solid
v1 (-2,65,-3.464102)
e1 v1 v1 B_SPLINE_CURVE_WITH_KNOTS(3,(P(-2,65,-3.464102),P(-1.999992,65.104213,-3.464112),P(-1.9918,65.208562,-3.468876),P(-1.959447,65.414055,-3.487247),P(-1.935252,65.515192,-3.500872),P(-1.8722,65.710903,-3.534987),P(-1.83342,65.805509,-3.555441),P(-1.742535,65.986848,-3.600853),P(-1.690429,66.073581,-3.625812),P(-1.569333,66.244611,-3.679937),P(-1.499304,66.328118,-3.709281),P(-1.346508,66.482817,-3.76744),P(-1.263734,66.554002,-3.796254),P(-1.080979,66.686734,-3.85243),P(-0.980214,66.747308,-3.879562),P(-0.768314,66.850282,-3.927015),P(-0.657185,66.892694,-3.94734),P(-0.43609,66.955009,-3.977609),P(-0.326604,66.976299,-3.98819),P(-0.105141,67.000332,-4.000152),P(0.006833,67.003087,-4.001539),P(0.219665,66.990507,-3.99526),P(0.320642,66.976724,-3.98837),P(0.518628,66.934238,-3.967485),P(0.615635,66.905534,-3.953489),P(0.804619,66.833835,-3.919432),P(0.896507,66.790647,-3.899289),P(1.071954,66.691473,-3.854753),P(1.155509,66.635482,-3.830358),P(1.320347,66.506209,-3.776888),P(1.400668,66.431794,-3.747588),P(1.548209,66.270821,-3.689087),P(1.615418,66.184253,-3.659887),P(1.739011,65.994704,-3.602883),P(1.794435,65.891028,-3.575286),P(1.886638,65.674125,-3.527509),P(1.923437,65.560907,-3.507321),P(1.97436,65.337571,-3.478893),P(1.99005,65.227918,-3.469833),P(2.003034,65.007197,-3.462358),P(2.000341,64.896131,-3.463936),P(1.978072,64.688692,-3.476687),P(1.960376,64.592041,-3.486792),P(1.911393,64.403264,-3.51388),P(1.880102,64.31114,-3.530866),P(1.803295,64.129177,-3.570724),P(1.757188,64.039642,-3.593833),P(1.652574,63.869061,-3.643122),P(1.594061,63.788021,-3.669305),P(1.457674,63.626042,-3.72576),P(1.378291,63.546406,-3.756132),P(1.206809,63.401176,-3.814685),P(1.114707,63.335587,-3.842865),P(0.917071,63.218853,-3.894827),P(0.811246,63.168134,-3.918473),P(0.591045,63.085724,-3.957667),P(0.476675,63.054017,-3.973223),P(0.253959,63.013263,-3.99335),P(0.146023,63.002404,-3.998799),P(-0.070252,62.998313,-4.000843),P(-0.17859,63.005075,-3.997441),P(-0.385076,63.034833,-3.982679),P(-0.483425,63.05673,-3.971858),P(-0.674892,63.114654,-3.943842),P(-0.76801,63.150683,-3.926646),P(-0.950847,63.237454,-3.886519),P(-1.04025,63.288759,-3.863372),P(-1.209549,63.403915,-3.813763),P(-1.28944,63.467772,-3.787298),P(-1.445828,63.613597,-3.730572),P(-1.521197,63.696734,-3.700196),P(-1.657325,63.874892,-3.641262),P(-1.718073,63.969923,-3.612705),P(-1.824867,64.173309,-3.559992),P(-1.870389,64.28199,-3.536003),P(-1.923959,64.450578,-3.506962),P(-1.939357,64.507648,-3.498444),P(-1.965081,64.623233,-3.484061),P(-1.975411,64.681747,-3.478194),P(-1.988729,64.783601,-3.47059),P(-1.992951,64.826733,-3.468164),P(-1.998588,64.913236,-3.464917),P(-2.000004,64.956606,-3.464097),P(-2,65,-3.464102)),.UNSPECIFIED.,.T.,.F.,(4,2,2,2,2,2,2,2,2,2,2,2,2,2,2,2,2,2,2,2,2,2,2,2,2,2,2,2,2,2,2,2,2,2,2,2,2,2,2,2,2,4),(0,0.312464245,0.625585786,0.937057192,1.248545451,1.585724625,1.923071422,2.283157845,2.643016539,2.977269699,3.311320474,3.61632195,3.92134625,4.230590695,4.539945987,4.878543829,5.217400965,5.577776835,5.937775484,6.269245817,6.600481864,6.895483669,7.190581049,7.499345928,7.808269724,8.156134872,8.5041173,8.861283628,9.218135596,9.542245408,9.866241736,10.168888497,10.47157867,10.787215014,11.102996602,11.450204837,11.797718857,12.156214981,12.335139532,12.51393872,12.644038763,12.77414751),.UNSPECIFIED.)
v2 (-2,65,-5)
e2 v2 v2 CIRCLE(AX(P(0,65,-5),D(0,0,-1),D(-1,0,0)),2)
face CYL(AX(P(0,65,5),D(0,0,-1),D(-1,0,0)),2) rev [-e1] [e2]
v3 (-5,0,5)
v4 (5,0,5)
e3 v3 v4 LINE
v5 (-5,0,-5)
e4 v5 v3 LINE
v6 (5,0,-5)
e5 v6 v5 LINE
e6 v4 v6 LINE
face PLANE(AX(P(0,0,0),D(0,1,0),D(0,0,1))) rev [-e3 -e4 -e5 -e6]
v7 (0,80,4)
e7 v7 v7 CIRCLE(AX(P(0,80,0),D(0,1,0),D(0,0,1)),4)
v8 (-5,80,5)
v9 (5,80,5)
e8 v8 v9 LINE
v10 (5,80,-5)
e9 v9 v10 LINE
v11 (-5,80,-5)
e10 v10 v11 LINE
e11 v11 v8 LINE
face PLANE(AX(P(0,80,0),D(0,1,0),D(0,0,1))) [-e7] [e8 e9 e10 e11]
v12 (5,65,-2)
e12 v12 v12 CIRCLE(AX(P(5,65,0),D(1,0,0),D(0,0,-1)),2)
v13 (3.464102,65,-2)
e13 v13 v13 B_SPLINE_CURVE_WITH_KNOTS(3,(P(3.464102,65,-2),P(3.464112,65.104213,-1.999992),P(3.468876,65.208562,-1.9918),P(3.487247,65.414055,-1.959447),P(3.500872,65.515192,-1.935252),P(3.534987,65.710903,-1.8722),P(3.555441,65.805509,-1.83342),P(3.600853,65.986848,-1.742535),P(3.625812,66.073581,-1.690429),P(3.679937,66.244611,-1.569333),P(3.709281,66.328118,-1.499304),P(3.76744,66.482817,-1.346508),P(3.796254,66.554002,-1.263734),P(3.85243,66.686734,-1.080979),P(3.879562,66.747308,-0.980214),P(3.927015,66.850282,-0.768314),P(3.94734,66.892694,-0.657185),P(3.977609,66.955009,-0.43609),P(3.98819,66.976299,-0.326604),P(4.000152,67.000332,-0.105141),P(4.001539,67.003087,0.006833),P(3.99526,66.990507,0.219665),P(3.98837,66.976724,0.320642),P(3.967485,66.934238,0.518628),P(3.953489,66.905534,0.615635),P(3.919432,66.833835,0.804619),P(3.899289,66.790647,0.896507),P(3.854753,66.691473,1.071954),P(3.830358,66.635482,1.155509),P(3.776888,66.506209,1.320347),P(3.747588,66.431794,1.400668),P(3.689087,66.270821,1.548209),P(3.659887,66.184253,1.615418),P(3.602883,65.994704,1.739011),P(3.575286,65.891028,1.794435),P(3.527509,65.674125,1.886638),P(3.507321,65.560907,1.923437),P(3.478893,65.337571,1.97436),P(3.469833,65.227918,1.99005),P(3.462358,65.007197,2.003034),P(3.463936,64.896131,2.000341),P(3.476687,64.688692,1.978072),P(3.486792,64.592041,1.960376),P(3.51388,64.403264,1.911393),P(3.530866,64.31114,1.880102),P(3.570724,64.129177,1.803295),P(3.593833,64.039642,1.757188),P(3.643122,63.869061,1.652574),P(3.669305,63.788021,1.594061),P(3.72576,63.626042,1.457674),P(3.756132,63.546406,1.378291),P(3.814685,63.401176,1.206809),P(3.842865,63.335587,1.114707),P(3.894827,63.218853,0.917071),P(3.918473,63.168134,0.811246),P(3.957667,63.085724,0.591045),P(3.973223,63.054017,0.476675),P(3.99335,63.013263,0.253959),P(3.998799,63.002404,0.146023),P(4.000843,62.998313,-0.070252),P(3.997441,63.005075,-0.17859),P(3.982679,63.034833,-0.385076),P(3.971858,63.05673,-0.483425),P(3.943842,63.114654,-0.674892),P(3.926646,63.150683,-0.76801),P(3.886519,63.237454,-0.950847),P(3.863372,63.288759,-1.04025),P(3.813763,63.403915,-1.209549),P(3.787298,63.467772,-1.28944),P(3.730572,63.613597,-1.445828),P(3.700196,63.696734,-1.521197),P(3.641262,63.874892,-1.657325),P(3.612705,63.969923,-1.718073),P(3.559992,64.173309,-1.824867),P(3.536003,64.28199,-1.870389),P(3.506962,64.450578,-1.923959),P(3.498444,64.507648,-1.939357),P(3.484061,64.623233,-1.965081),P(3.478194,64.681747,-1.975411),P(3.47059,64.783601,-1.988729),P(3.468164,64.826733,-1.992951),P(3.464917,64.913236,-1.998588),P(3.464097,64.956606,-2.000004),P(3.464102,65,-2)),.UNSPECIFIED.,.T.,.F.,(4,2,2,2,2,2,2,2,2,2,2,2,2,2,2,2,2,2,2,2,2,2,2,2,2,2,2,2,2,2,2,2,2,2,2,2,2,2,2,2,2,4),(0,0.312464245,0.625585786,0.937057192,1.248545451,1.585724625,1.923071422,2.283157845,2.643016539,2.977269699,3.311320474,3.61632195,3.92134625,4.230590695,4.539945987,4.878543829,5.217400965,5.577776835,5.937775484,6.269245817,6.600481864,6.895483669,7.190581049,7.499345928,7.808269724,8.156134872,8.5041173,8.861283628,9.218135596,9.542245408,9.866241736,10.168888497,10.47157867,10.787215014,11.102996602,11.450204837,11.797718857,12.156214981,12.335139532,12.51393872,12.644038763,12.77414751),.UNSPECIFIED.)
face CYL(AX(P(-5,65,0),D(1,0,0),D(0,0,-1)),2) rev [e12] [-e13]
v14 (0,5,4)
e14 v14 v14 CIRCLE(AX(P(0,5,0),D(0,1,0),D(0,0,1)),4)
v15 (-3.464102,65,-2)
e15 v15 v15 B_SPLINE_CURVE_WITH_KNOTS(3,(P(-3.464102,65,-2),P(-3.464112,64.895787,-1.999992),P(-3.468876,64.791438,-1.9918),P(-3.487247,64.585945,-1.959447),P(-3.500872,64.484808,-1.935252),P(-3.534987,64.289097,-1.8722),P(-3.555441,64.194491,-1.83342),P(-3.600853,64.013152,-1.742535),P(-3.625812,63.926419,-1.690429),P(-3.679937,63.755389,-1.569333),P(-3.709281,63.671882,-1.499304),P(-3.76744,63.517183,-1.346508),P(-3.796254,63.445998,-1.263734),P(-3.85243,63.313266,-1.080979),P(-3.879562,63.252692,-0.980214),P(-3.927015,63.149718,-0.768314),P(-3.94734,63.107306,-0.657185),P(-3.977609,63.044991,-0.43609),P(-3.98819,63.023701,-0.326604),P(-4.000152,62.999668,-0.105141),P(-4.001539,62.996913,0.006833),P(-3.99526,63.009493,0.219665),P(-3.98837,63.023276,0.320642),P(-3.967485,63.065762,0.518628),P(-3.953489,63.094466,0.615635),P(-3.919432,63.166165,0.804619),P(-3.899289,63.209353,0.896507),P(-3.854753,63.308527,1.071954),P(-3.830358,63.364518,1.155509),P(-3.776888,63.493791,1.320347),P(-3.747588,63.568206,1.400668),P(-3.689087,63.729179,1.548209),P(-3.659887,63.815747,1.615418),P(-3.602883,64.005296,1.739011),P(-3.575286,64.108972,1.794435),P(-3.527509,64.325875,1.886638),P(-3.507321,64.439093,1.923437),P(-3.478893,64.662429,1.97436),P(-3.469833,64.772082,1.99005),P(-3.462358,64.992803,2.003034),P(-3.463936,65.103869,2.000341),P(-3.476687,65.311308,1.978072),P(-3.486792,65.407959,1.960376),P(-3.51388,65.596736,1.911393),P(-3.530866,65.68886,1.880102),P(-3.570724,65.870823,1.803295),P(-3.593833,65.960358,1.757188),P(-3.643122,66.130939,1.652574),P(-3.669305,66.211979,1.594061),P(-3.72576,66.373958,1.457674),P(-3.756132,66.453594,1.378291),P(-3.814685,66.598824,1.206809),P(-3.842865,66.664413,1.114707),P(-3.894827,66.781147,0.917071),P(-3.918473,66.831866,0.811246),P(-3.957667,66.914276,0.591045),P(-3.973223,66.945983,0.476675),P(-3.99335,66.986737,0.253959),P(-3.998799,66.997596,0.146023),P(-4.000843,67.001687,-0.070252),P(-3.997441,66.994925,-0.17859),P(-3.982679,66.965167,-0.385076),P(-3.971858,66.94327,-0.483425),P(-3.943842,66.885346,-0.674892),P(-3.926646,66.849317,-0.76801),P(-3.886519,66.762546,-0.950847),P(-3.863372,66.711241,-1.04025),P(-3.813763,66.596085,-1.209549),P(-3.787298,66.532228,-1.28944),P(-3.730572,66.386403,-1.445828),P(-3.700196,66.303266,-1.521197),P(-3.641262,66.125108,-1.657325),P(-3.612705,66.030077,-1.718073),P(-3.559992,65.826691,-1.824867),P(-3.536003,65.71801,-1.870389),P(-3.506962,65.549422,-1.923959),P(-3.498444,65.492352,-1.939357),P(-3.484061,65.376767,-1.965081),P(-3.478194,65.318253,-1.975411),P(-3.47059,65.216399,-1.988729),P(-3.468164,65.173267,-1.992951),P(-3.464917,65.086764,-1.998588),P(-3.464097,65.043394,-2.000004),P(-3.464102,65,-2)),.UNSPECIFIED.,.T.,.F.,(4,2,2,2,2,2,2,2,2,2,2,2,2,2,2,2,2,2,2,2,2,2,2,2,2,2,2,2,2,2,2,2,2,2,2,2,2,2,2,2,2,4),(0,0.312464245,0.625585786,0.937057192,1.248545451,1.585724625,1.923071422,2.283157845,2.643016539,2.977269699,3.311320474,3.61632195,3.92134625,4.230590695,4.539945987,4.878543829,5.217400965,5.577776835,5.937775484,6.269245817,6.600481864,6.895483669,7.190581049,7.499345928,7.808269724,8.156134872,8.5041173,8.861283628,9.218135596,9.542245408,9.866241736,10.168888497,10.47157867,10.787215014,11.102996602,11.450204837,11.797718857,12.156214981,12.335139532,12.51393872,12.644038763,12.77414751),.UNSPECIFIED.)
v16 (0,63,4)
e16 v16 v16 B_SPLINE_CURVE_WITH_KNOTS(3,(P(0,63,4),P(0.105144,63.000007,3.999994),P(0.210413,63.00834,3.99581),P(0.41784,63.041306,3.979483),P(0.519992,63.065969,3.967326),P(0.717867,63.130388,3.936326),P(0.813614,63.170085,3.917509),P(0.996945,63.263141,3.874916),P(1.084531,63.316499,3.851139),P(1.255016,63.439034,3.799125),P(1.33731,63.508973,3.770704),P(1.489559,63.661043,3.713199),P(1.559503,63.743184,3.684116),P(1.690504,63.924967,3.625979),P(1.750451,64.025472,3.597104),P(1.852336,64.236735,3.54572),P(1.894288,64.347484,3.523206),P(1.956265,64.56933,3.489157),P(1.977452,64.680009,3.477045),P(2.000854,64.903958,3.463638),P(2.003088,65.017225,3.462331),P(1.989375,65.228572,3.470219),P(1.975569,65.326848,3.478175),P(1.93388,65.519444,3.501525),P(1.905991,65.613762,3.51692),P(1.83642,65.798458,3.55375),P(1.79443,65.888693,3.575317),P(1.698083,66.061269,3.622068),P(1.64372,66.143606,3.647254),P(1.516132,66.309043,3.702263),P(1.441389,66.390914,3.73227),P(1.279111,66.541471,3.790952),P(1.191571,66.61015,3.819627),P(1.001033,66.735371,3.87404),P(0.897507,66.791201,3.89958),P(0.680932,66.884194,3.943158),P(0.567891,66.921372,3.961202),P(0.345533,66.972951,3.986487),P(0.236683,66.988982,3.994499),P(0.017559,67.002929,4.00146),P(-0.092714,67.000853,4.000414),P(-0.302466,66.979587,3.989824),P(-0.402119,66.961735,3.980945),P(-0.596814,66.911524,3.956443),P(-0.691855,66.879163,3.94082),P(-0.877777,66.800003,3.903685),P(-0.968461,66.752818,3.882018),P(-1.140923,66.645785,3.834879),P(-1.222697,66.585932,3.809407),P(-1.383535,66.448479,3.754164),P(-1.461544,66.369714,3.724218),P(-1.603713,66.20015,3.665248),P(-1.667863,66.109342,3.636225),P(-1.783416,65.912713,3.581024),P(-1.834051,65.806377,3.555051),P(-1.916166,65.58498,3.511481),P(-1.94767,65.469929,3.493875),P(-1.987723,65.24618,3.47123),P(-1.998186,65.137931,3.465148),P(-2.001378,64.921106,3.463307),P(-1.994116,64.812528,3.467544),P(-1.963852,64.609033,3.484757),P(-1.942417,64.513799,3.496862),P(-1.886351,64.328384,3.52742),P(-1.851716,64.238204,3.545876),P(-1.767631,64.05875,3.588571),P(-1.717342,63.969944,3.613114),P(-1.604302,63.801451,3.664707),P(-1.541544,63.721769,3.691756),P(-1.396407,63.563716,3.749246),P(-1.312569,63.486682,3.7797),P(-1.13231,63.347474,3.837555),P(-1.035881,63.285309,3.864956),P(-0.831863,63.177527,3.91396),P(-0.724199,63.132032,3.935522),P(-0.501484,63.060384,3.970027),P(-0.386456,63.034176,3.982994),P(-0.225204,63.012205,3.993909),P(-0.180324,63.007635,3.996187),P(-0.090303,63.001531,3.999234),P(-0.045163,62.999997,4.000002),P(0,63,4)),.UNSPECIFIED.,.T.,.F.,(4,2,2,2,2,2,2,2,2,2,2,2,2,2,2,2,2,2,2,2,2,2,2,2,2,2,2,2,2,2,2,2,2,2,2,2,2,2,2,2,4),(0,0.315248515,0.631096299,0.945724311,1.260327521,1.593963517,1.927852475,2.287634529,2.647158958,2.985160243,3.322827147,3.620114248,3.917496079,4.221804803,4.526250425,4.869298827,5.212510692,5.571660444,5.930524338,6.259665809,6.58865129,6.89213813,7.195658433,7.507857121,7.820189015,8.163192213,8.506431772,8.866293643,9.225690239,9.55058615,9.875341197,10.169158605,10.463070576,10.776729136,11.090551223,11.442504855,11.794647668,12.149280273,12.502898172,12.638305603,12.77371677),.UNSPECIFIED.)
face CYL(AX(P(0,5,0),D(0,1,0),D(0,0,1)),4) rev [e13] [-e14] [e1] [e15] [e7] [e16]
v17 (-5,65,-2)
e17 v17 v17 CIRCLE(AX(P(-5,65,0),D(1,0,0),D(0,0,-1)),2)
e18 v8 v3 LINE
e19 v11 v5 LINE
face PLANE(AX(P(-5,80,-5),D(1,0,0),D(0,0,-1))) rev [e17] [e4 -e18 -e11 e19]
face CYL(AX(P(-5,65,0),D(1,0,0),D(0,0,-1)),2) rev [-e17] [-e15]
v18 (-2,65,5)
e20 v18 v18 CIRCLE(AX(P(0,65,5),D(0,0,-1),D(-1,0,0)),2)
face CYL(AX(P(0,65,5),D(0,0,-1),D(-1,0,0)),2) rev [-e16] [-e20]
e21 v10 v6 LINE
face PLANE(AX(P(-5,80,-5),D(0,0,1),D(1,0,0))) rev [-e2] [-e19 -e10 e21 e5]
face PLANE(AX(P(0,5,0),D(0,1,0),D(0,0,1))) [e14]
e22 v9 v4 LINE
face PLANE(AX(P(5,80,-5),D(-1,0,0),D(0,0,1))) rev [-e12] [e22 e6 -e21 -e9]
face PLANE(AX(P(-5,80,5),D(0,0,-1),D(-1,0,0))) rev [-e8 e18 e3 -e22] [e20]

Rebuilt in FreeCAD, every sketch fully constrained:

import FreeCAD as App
import Part
import Sketcher
from FreeCAD import Vector

doc = App.newDocument("Part")
body = doc.addObject("PartDesign::Body", "Body")

# Sketch on XZ plane
sketch1 = doc.addObject("Sketcher::SketchObject", "Sketch")
body.addObject(sketch1)
sketch1.AttachmentSupport = (doc.XZ_Plane, [""])
sketch1.MapMode = "FlatFace"
sketch1.addGeometry([
    Part.LineSegment(Vector(-5, -5, 0), Vector(-5, 5, 0)),
    Part.LineSegment(Vector(-5, 5, 0), Vector(5, 5, 0)),
    Part.LineSegment(Vector(5, 5, 0), Vector(5, -5, 0)),
    Part.LineSegment(Vector(5, -5, 0), Vector(-5, -5, 0)),
], False)
sketch1.addConstraint([
    Sketcher.Constraint("Coincident", 0, 2, 1, 1),
    Sketcher.Constraint("Coincident", 1, 2, 2, 1),
    Sketcher.Constraint("Coincident", 2, 2, 3, 1),
    Sketcher.Constraint("Coincident", 3, 2, 0, 1),
    Sketcher.Constraint("Vertical", 0),
    Sketcher.Constraint("Horizontal", 1),
    Sketcher.Constraint("Vertical", 2),
    Sketcher.Constraint("Horizontal", 3),
    Sketcher.Constraint("Symmetric", 0, 2, 2, 2, -1, 1),
    Sketcher.Constraint("Equal", 3, 0),
    Sketcher.Constraint("DistanceX", 1, 1, 1, 2, 10.0),
])
pad1 = doc.addObject("PartDesign::Pad", "Pad")
body.addObject(pad1)
pad1.Profile = sketch1
pad1.Length = 80
pad1.Reversed = True

# Sketch on XZ plane
sketch2 = doc.addObject("Sketcher::SketchObject", "Sketch001")
body.addObject(sketch2)
sketch2.AttachmentSupport = (doc.XZ_Plane, [""])
sketch2.MapMode = "FlatFace"
sketch2.AttachmentOffset = App.Placement(Vector(0, 0, -80), App.Rotation())
sketch2.addGeometry(Part.Circle(Vector(0, 0, 0), Vector(0, 0, 1), 4), False)
sketch2.addConstraint([
    Sketcher.Constraint("Coincident", 0, 3, -1, 1),
    Sketcher.Constraint("Diameter", 0, 8.0),
])
pocket1 = doc.addObject("PartDesign::Pocket", "Pocket")
body.addObject(pocket1)
pocket1.Profile = sketch2
pocket1.Length = 75
pocket1.Reversed = True

# Sketch on YZ plane
sketch3 = doc.addObject("Sketcher::SketchObject", "Sketch002")
body.addObject(sketch3)
sketch3.AttachmentSupport = (doc.YZ_Plane, [""])
sketch3.MapMode = "FlatFace"
sketch3.AttachmentOffset = App.Placement(Vector(0, 0, 5), App.Rotation())
sketch3.addGeometry(Part.Circle(Vector(65, 0, 0), Vector(0, 0, 1), 2), False)
sketch3.addConstraint([
    Sketcher.Constraint("PointOnObject", 0, 3, -1),
    Sketcher.Constraint("Diameter", 0, 4.0),
    Sketcher.Constraint("DistanceX", -1, 1, 0, 3, 65.0),
])
pocket2 = doc.addObject("PartDesign::Pocket", "Pocket001")
body.addObject(pocket2)
pocket2.Profile = sketch3
pocket2.Type = "ThroughAll"

# Sketch on XY plane
sketch4 = doc.addObject("Sketcher::SketchObject", "Sketch003")
body.addObject(sketch4)
sketch4.AttachmentSupport = (doc.XY_Plane, [""])
sketch4.MapMode = "FlatFace"
sketch4.AttachmentOffset = App.Placement(Vector(0, 0, -5), App.Rotation())
sketch4.addGeometry(Part.Circle(Vector(0, 65, 0), Vector(0, 0, 1), 2), False)
sketch4.addConstraint([
    Sketcher.Constraint("PointOnObject", 0, 3, -2),
    Sketcher.Constraint("Diameter", 0, 4.0),
    Sketcher.Constraint("DistanceY", -1, 1, 0, 3, 65.0),
])
pocket3 = doc.addObject("PartDesign::Pocket", "Pocket002")
body.addObject(pocket3)
pocket3.Profile = sketch4
pocket3.Length = 10
pocket3.Reversed = True

doc.recompute()
